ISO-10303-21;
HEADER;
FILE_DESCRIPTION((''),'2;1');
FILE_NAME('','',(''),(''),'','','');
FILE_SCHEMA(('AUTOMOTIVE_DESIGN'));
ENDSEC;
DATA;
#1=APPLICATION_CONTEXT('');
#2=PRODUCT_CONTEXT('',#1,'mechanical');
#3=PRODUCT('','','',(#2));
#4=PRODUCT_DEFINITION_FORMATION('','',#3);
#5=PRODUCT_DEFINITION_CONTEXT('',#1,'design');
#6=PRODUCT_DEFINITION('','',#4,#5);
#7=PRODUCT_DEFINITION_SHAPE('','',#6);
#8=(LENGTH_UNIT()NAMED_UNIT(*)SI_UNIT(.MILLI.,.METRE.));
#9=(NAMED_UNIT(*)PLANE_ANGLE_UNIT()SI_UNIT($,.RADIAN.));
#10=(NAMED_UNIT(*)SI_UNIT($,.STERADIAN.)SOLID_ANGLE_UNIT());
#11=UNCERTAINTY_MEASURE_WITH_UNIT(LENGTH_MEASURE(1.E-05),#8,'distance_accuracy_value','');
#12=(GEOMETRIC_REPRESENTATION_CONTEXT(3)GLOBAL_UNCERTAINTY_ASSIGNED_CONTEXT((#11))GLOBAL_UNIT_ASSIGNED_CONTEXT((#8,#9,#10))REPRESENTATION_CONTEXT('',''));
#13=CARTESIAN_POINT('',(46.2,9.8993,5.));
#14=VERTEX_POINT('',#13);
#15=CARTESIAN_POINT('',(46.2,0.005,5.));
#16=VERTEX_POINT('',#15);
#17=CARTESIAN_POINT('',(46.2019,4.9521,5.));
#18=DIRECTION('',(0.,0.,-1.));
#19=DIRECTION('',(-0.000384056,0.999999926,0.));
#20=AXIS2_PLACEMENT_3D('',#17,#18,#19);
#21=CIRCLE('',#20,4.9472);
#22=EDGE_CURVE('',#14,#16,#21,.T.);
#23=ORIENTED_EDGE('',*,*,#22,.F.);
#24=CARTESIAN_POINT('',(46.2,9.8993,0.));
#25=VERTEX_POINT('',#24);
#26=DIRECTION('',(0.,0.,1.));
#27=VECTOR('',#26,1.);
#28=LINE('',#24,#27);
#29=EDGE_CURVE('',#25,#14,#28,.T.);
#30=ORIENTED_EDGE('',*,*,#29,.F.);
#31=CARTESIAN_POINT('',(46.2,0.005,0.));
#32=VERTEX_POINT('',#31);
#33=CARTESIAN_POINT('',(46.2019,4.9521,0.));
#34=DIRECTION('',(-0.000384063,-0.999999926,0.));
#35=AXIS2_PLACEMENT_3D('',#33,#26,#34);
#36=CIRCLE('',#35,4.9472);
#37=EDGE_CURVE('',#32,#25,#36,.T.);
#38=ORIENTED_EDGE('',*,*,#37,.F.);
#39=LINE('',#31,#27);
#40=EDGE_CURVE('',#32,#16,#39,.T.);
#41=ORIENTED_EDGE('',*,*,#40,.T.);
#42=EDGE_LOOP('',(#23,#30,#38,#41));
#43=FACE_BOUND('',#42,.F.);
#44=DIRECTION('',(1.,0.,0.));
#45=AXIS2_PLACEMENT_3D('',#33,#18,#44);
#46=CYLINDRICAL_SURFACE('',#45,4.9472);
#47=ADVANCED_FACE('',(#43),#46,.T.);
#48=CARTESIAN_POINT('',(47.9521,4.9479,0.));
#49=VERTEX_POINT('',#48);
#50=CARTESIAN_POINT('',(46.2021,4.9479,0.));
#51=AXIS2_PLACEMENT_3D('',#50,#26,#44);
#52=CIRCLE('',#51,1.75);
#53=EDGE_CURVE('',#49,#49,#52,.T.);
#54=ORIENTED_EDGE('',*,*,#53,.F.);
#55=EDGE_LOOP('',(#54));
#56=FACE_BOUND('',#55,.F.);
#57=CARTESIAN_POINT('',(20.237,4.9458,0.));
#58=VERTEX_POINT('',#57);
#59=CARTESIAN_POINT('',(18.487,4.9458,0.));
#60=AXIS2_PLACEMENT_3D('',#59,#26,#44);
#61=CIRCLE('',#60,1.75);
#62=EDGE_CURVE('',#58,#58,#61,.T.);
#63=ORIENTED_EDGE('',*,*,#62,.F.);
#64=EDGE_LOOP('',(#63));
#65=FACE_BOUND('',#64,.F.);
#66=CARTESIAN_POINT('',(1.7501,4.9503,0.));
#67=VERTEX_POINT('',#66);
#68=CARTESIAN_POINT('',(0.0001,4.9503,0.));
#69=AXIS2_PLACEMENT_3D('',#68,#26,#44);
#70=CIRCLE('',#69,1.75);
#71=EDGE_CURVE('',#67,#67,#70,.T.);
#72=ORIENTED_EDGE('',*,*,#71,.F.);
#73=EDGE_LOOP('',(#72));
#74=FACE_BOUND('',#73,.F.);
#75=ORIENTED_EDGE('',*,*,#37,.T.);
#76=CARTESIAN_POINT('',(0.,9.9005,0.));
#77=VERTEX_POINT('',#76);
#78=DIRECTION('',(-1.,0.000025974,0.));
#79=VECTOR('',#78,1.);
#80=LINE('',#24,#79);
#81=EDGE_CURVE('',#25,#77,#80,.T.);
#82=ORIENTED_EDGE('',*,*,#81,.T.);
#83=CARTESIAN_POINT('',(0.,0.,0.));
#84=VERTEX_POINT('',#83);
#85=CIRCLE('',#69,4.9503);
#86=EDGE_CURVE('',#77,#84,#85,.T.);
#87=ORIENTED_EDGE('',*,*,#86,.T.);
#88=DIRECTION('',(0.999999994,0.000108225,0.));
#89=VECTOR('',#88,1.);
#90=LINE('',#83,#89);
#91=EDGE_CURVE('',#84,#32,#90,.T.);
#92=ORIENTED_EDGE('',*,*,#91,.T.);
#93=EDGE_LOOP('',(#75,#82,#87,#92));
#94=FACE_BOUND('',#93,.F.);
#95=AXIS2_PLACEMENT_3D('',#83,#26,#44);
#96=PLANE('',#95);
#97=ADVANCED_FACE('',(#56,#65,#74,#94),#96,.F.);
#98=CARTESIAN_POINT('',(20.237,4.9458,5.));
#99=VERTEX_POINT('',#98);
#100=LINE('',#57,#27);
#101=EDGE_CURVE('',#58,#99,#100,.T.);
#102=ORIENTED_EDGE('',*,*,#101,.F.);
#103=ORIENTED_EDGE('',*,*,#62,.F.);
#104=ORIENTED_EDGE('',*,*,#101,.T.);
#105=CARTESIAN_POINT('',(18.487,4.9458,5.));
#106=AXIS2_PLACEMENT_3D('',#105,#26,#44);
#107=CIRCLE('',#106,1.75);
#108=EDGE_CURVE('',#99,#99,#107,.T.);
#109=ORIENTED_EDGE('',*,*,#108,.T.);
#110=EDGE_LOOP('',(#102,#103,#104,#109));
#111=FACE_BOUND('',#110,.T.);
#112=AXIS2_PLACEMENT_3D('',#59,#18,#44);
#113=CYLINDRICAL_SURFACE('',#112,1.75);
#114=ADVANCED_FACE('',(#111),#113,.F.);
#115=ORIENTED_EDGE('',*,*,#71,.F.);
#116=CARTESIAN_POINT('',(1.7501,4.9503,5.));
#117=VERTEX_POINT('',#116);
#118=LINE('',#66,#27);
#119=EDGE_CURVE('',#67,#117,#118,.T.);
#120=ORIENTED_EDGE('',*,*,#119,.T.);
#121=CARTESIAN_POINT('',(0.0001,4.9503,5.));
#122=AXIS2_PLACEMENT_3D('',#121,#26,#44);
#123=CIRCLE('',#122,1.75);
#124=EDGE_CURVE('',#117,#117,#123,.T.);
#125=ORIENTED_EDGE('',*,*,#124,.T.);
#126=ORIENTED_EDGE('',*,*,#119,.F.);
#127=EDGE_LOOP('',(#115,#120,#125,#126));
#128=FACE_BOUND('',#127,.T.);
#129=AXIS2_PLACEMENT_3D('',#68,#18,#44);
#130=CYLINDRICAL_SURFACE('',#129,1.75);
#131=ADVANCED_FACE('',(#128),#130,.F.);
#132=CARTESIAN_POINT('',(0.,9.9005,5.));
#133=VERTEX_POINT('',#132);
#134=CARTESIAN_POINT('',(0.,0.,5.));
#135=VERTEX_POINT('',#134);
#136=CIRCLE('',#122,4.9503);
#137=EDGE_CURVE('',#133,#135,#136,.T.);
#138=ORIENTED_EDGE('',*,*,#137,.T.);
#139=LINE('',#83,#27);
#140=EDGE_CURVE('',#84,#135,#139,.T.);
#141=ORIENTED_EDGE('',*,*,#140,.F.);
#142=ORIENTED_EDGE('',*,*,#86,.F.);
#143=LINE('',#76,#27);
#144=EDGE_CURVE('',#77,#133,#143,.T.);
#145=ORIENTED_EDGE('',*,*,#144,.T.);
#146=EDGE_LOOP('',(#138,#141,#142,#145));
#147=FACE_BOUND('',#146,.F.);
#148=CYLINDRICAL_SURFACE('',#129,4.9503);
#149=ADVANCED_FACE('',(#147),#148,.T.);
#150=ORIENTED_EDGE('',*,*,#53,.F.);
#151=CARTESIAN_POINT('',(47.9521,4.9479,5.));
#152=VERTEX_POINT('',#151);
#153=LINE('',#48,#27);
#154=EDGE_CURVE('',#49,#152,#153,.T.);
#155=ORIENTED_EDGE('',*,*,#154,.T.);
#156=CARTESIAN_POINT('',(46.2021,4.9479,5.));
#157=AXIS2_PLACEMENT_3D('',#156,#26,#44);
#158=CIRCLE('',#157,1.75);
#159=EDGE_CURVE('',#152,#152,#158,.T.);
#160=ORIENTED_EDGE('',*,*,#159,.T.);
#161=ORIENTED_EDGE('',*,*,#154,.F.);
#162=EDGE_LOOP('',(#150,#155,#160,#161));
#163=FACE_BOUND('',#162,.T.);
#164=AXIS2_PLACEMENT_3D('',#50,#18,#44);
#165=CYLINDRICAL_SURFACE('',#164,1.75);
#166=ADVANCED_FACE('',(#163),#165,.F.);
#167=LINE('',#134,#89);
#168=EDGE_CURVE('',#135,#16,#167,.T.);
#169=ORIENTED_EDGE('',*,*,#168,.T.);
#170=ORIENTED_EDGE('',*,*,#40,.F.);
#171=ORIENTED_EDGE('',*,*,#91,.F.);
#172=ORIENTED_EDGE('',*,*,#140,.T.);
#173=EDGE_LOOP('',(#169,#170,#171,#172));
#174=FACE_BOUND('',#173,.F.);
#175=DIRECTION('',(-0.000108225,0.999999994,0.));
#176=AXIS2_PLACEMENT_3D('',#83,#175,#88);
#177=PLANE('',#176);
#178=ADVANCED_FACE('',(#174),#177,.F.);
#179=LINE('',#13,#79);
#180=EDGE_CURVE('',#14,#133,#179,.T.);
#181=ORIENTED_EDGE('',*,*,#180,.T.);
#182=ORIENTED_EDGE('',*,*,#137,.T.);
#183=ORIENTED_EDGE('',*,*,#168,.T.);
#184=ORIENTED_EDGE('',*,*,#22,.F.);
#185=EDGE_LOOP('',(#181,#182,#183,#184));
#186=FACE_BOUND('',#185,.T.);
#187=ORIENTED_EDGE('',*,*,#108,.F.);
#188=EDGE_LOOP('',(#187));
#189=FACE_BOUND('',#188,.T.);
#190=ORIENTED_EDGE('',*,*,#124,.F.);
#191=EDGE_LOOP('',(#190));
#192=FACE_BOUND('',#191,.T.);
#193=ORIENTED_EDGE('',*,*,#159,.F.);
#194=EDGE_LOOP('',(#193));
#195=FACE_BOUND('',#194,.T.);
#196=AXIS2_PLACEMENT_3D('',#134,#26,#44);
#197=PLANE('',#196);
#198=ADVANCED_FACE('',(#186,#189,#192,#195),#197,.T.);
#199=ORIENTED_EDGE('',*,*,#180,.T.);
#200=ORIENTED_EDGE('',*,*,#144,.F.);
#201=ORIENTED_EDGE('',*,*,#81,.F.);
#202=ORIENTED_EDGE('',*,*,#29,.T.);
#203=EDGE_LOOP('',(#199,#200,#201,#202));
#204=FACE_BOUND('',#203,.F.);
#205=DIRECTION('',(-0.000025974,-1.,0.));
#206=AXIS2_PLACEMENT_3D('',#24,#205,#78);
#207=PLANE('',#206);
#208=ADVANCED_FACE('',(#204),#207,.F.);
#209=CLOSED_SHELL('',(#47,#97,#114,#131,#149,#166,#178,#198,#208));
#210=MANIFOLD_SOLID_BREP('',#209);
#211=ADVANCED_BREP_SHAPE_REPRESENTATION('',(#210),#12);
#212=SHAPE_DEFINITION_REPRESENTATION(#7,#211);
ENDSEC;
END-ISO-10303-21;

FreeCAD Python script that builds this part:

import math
import FreeCAD as App
import Part
import Sketcher

V = App.Vector

doc = App.newDocument("Part")
body = doc.addObject("PartDesign::Body", "Body")

# Sketch on XY plane
sketch1 = body.newObject("Sketcher::SketchObject", "Sketch")
sketch1.AttachmentSupport = (doc.getObject("XY_Plane"), [""])
sketch1.MapMode = "FlatFace"
sketch1.addGeometry([
    Part.LineSegment(V(0, 0, 0), V(46.2, 0.005, 0)),  # 0
    Part.ArcOfCircle(Part.Circle(V(46.2019, 4.9521, 0), V(0, 0, 1), 4.9472), math.radians(-90.022005), math.radians(90.022005)),  # 1
    Part.LineSegment(V(46.2, 9.8993, 0), V(0, 9.9005, 0)),  # 2
    Part.ArcOfCircle(Part.Circle(V(0.0001, 4.9503, 0), V(0, 0, 1), 4.9503), math.radians(90.001157), math.radians(269.998843)),  # 3
    Part.Circle(V(18.487, 4.9458, 0), V(0, 0, 1), 1.75),  # 4
    Part.Circle(V(46.2021, 4.9479, 0), V(0, 0, 1), 1.75),  # 5
    Part.Circle(V(0.0001, 4.9503, 0), V(0, 0, 1), 1.75),  # 6
], False)
sketch1.addConstraint([
    Sketcher.Constraint("Coincident", 0, 2, 1, 1),
    Sketcher.Constraint("Coincident", 1, 2, 2, 1),
    Sketcher.Constraint("Coincident", 2, 2, 3, 1),
    Sketcher.Constraint("Coincident", 3, 2, 0, 1),
    Sketcher.Constraint("Coincident", 3, 2, -1, 1),
    Sketcher.Constraint("Coincident", 6, 3, 3, 3),
    Sketcher.Constraint("PointOnObject", 3, 3, -2),
    Sketcher.Constraint("PointOnObject", 2, 2, -2),
    Sketcher.Constraint("Diameter", 4, 3.5),
    Sketcher.Constraint("Diameter", 5, 3.5),
    Sketcher.Constraint("Diameter", 6, 3.5),
    Sketcher.Constraint("Distance", 0, 46.2),
    Sketcher.Constraint("Distance", 2, 46.2),
    Sketcher.Constraint("Radius", 1, 4.9472),
    Sketcher.Constraint("Radius", 3, 4.9503),
    Sketcher.Constraint("DistanceX", -1, 1, 1, 3, 46.202),
    Sketcher.Constraint("DistanceY", -1, 1, 1, 3, 4.952),
    Sketcher.Constraint("DistanceX", -1, 1, 4, 3, 18.487),
    Sketcher.Constraint("DistanceX", -1, 1, 5, 3, 46.202),
    Sketcher.Constraint("DistanceY", -1, 1, 5, 3, 4.948),
    Sketcher.Constraint("DistanceY", 4, 3, 5, 3, 0.002),
])
pad1 = body.newObject("PartDesign::Pad", "Pad")
pad1.Profile = sketch1
pad1.Length = 5

doc.recompute()
